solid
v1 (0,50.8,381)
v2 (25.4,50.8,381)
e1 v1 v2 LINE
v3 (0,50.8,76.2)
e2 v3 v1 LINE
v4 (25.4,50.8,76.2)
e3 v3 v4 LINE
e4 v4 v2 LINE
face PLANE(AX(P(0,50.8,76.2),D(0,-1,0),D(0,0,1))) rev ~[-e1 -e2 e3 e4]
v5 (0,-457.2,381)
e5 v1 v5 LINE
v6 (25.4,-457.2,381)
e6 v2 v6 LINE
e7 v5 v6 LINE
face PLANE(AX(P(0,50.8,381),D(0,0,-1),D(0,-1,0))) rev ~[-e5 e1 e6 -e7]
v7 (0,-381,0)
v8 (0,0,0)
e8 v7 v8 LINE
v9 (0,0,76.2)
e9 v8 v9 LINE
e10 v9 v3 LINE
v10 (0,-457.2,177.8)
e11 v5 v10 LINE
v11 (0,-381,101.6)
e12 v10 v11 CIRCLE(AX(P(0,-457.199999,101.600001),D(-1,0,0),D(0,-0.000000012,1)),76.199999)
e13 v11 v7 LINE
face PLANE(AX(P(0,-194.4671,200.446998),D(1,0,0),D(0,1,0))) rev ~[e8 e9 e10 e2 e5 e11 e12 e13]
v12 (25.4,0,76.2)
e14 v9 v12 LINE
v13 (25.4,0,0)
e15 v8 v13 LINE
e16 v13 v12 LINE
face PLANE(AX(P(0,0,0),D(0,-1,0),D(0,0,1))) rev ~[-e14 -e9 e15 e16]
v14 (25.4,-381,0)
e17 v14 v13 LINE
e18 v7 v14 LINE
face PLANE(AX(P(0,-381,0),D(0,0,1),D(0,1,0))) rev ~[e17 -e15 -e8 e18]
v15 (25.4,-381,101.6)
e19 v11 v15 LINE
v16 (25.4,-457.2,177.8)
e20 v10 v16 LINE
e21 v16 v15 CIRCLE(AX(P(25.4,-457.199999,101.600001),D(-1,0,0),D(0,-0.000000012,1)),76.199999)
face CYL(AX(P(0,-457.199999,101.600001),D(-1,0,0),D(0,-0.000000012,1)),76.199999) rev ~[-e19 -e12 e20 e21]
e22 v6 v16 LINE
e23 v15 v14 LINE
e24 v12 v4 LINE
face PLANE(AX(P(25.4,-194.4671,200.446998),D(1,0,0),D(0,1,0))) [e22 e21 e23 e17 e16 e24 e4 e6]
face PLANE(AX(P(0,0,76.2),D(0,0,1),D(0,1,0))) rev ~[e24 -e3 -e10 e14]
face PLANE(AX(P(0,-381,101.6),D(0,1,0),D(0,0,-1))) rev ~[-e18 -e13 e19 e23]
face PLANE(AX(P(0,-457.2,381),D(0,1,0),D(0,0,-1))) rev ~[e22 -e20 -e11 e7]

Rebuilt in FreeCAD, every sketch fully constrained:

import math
import FreeCAD as App
import Part
import Sketcher

V = App.Vector
Q = App.Units.Quantity

doc = App.newDocument("Part")
body = doc.addObject("PartDesign::Body", "Body")

# Sketch on YZ plane
sketch1 = doc.addObject("Sketcher::SketchObject", "Sketch")
body.addObject(sketch1)
sketch1.AttachmentSupport = (doc.YZ_Plane, [""])
sketch1.MapMode = "FlatFace"
sketch1.addGeometry(Part.LineSegment(V(50.8, 381, 0), V(-457.2, 381, 0)), False)
sketch1.addGeometry(Part.LineSegment(V(-457.2, 381, 0), V(-457.2, 177.8, 0)), False)
sketch1.addGeometry(Part.ArcOfCircle(Part.Circle(V(-457.199999, 101.600001, 0), V(0, 0, 1), 76.199999), math.radians(-0.000001), math.radians(90.000001)), False)
sketch1.addGeometry(Part.LineSegment(V(-381, 101.6, 0), V(-381, 0, 0)), False)
sketch1.addGeometry(Part.LineSegment(V(-381, 0, 0), V(0, 0, 0)), False)
sketch1.addGeometry(Part.LineSegment(V(0, 0, 0), V(0, 76.2, 0)), False)
sketch1.addGeometry(Part.LineSegment(V(0, 76.2, 0), V(50.8, 76.2, 0)), False)
sketch1.addGeometry(Part.LineSegment(V(50.8, 76.2, 0), V(50.8, 381, 0)), False)
sketch1.addConstraint(Sketcher.Constraint("Coincident", 0, 2, 1, 1))
sketch1.addConstraint(Sketcher.Constraint("Coincident", 1, 2, 2, 2))
sketch1.addConstraint(Sketcher.Constraint("Tangent", 2, 1, 3, 1))
sketch1.addConstraint(Sketcher.Constraint("Coincident", 3, 2, 4, 1))
sketch1.addConstraint(Sketcher.Constraint("Coincident", 4, 2, 5, 1))
sketch1.addConstraint(Sketcher.Constraint("Coincident", 5, 2, 6, 1))
sketch1.addConstraint(Sketcher.Constraint("Coincident", 6, 2, 7, 1))
sketch1.addConstraint(Sketcher.Constraint("Coincident", 7, 2, 0, 1))
sketch1.addConstraint(Sketcher.Constraint("Horizontal", 0))
sketch1.addConstraint(Sketcher.Constraint("Vertical", 1))
sketch1.addConstraint(Sketcher.Constraint("Vertical", 3))
sketch1.addConstraint(Sketcher.Constraint("Horizontal", 4))
sketch1.addConstraint(Sketcher.Constraint("Vertical", 5))
sketch1.addConstraint(Sketcher.Constraint("Horizontal", 6))
sketch1.addConstraint(Sketcher.Constraint("Vertical", 7))
sketch1.addConstraint(Sketcher.Constraint("Coincident", 4, 2, -1, 1))
sketch1.addConstraint(Sketcher.Constraint("Vertical", 2, 3, 0, 2))
sketch1.addConstraint(Sketcher.Constraint("Radius", 2, Q("3 in")))
sketch1.addConstraint(Sketcher.Constraint("DistanceX", 0, 2, 0, 1, Q("20 in")))
sketch1.addConstraint(Sketcher.Constraint("DistanceX", 4, 1, 4, 2, Q("15 in")))
sketch1.addConstraint(Sketcher.Constraint("DistanceY", 1, 2, 1, 1, Q("8 in")))
sketch1.addConstraint(Sketcher.Constraint("DistanceY", 3, 2, 3, 1, Q("4 in")))
sketch1.addConstraint(Sketcher.Constraint("DistanceY", 5, 1, 5, 2, Q("3 in")))
pad1 = doc.addObject("PartDesign::Pad", "Pad")
body.addObject(pad1)
pad1.Profile = sketch1
pad1.Length = Q("1 in")

doc.recompute()
